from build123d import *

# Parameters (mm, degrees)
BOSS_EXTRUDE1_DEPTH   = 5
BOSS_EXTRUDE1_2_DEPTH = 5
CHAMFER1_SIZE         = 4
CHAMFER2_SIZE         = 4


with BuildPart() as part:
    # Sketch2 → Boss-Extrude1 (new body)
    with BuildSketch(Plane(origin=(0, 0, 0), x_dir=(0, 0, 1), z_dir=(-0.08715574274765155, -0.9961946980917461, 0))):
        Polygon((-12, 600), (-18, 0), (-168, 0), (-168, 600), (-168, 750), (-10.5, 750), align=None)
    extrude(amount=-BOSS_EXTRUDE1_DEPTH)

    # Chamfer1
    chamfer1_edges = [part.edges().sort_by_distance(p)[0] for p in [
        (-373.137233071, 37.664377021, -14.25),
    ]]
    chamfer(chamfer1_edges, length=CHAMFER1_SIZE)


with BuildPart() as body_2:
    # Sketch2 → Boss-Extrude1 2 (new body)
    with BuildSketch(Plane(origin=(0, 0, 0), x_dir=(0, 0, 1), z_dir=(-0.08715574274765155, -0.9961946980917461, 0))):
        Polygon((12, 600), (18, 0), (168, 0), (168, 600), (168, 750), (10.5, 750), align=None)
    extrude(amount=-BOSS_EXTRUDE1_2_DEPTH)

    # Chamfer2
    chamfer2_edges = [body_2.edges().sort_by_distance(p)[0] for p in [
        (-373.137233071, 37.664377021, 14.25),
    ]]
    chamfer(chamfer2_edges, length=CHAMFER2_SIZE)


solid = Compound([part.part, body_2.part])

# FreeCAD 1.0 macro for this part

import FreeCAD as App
import Part
import Sketcher
Q = App.Units.Quantity


def edges_at(feature, points):
    """Names of the edges that pass closest to the given points."""
    edges = feature.Shape.Edges
    near = lambda p: min(range(len(edges)), key=lambda i: edges[i].distToShape(Part.Vertex(*p))[0])
    return sorted({f"Edge{near(p) + 1}" for p in points})

doc = App.newDocument("Part")
params = doc.addObject("Spreadsheet::Sheet", "Params")
for row, (alias, value) in enumerate([
    ("sketch1_width", "150 mm"),
    ("sketch1_height", "750 mm"),
    ("sketch1_width2", "157.5 mm"),
    ("pad1_length", "5 mm"),
    ("chamfer_size", "4 mm"),
    ("sketch2_width", "150 mm"),
    ("sketch2_height", "750 mm"),
    ("sketch2_width2", "157.5 mm"),
    ("pad2_length", "5 mm"),
    ("chamfer2_size", "4 mm"),
], start=1):
    params.set(f"A{row}", alias)
    params.set(f"B{row}", "=" + value)
    params.setAlias(f"B{row}", alias)

body = doc.addObject("PartDesign::Body", "Body")

# Sketch on an angled plane
sketch1 = doc.addObject("Sketcher::SketchObject", "Sketch")
body.addObject(sketch1)
sketch1.Placement = App.Placement(App.Vector(0, 0, 0), App.Rotation(App.Vector(0, 0, 1), App.Vector(-0.996194698, 0.087155743, 0), App.Vector(-0.087155743, -0.996194698, 0), "ZXY"))
sketch1.addGeometry([
    Part.LineSegment(App.Vector(-18, 0, 0), App.Vector(-10, 750, 0)),
    Part.LineSegment(App.Vector(-10, 750, 0), App.Vector(-168, 750, 0)),
    Part.LineSegment(App.Vector(-168, 750, 0), App.Vector(-168, 0, 0)),
    Part.LineSegment(App.Vector(-168, 0, 0), App.Vector(-18, 0, 0)),
], False)
sketch1.addConstraint([
    Sketcher.Constraint("Coincident", 0, 2, 1, 1),
    Sketcher.Constraint("Coincident", 1, 2, 2, 1),
    Sketcher.Constraint("Coincident", 2, 2, 3, 1),
    Sketcher.Constraint("Coincident", 3, 2, 0, 1),
    Sketcher.Constraint("Horizontal", 1),
    Sketcher.Constraint("Vertical", 2),
    Sketcher.Constraint("Horizontal", 3),
    Sketcher.Constraint("PointOnObject", 2, 2, -1),
    Sketcher.Constraint("DistanceX", 3, 1, 3, 2, Q("150 mm")),
    Sketcher.Constraint("DistanceY", 2, 2, 2, 1, Q("750 mm")),
    Sketcher.Constraint("DistanceX", 1, 2, 1, 1, Q("157.5 mm")),
    Sketcher.Constraint("DistanceX", 1, 2, -1, 1, Q("168 mm")),
])
sketch1.setExpression("Constraints[8]", "Params.sketch1_width")
sketch1.setExpression("Constraints[9]", "Params.sketch1_height")
sketch1.setExpression("Constraints[10]", "Params.sketch1_width2")
pad1 = doc.addObject("PartDesign::Pad", "Pad")
body.addObject(pad1)
pad1.Profile = sketch1
pad1.setExpression("Length", "Params.pad1_length")
pad1.Reversed = True
doc.recompute()

chamfer = doc.addObject("PartDesign::Chamfer", "Chamfer")
body.addObject(chamfer)
chamfer.Base = (pad1, edges_at(pad1, [(-373.137, 37.664, -14.25)]))
chamfer.setExpression("Size", "Params.chamfer_size")
body2 = doc.addObject("PartDesign::Body", "Body001")

# Sketch on an angled plane
sketch2 = doc.addObject("Sketcher::SketchObject", "Sketch001")
body2.addObject(sketch2)
sketch2.Placement = App.Placement(App.Vector(0, 0, 0), App.Rotation(App.Vector(0, 0, 1), App.Vector(-0.996194698, 0.087155743, 0), App.Vector(-0.087155743, -0.996194698, 0), "ZXY"))
sketch2.addGeometry([
    Part.LineSegment(App.Vector(18, 0, 0), App.Vector(168, 0, 0)),
    Part.LineSegment(App.Vector(168, 0, 0), App.Vector(168, 750, 0)),
    Part.LineSegment(App.Vector(168, 750, 0), App.Vector(10, 750, 0)),
    Part.LineSegment(App.Vector(10, 750, 0), App.Vector(18, 0, 0)),
], False)
sketch2.addConstraint([
    Sketcher.Constraint("Coincident", 0, 2, 1, 1),
    Sketcher.Constraint("Coincident", 1, 2, 2, 1),
    Sketcher.Constraint("Coincident", 2, 2, 3, 1),
    Sketcher.Constraint("Coincident", 3, 2, 0, 1),
    Sketcher.Constraint("Horizontal", 0),
    Sketcher.Constraint("Vertical", 1),
    Sketcher.Constraint("Horizontal", 2),
    Sketcher.Constraint("PointOnObject", 0, 2, -1),
    Sketcher.Constraint("DistanceX", 0, 1, 0, 2, Q("150 mm")),
    Sketcher.Constraint("DistanceY", 1, 1, 1, 2, Q("750 mm")),
    Sketcher.Constraint("DistanceX", 2, 2, 2, 1, Q("157.5 mm")),
    Sketcher.Constraint("DistanceX", -1, 1, 0, 2, Q("168 mm")),
])
sketch2.setExpression("Constraints[8]", "Params.sketch2_width")
sketch2.setExpression("Constraints[9]", "Params.sketch2_height")
sketch2.setExpression("Constraints[10]", "Params.sketch2_width2")
pad2 = doc.addObject("PartDesign::Pad", "Pad001")
body2.addObject(pad2)
pad2.Profile = sketch2
pad2.setExpression("Length", "Params.pad2_length")
pad2.Reversed = True
doc.recompute()

chamfer2 = doc.addObject("PartDesign::Chamfer", "Chamfer001")
body2.addObject(chamfer2)
chamfer2.Base = (pad2, edges_at(pad2, [(-373.137, 37.664, 14.25)]))
chamfer2.setExpression("Size", "Params.chamfer2_size")

doc.recompute()
